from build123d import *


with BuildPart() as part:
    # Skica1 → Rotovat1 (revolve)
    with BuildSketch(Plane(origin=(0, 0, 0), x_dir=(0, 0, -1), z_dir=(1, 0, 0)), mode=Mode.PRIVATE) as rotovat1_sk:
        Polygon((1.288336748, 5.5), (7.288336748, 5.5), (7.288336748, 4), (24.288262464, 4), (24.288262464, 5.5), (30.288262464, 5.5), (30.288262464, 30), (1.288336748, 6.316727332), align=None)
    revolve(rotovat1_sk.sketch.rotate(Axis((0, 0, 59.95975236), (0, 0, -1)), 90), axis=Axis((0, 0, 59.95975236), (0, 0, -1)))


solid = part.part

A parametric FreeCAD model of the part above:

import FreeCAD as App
import Part
import Sketcher


def add_polygon(sketch, points):
    """Adds a closed chain of lines whose ends are joined by coincident constraints."""
    first, n = sketch.GeometryCount, len(points)
    for a, b in zip(points, points[1:] + points[:1]):
        sketch.addGeometry(Part.LineSegment(App.Vector(*a, 0), App.Vector(*b, 0)), False)
    for i in range(n):
        sketch.addConstraint(Sketcher.Constraint("Coincident", first + i, 2, first + (i + 1) % n, 1))

doc = App.newDocument("Part")
body = doc.addObject("PartDesign::Body", "Body")

# Sketch on YZ plane
sketch1 = body.newObject("Sketcher::SketchObject", "Sketch")
sketch1.AttachmentSupport = (doc.getObject("YZ_Plane"), [""])
sketch1.MapMode = "FlatFace"
add_polygon(sketch1, [(5.5, -1.3), (5.5, -7.3), (4, -7.3), (4, -24.3), (5.5, -24.3), (5.5, -30.3), (30, -30.3), (6.3, -1.3)])  # lines 0-7
sketch1.addConstraint([
    Sketcher.Constraint("Vertical", 0),
    Sketcher.Constraint("Horizontal", 1),
    Sketcher.Constraint("Vertical", 2),
    Sketcher.Constraint("Horizontal", 3),
    Sketcher.Constraint("Vertical", 4),
    Sketcher.Constraint("Horizontal", 5),
    Sketcher.Constraint("Horizontal", 7),
    Sketcher.Constraint("Vertical", 0, 2, 3, 2),
    Sketcher.Constraint("Equal", 0, 4),
    Sketcher.Constraint("DistanceY", 0, 2, 0, 1, 6.0),
    Sketcher.Constraint("DistanceX", 1, 2, 1, 1, 1.5),
    Sketcher.Constraint("DistanceX", 5, 1, 5, 2, 24.5),
    Sketcher.Constraint("DistanceX", -1, 1, 1, 2, 4.0),
    Sketcher.Constraint("DistanceX", 7, 2, 7, 1, 0.816727),
    Sketcher.Constraint("DistanceY", 2, 2, 2, 1, 16.999926),
    Sketcher.Constraint("DistanceY", 0, 2, -1, 1, 7.288337),
])
revolution = body.newObject("PartDesign::Revolution", "Revolution")
revolution.Profile = sketch1
revolution.ReferenceAxis = (sketch1, ["V_Axis"])
revolution.Angle = 360

doc.recompute()
